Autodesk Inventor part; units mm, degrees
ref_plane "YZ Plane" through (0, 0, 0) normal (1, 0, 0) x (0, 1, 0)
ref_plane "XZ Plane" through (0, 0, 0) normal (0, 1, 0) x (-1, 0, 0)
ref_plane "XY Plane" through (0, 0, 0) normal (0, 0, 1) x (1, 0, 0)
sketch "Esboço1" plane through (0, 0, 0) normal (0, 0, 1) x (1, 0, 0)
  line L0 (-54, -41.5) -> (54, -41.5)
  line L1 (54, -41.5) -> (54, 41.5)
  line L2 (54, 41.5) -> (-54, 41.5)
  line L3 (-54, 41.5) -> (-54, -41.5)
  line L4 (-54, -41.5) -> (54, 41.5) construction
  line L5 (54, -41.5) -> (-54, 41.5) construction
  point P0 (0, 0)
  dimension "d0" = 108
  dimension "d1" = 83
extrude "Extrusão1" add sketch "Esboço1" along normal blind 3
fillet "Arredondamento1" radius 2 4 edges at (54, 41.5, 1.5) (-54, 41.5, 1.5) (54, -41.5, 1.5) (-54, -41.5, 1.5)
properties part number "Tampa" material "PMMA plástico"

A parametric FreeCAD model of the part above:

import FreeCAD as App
import Part
import Sketcher


def edges_at(feature, points):
    """Names of the edges that pass closest to the given points."""
    edges = feature.Shape.Edges
    near = lambda p: min(range(len(edges)), key=lambda i: edges[i].distToShape(Part.Vertex(*p))[0])
    return sorted({f"Edge{near(p) + 1}" for p in points})

doc = App.newDocument("Part")
body = doc.addObject("PartDesign::Body", "Body")

# Sketch on XY plane
sketch1 = body.newObject("Sketcher::SketchObject", "Sketch")
sketch1.AttachmentSupport = (doc.getObject("XY_Plane"), [""])
sketch1.MapMode = "FlatFace"
sketch1.addGeometry(Part.LineSegment(App.Vector(-54, 41.5, 0), App.Vector(-54, -41.5, 0)), False)
sketch1.addGeometry(Part.LineSegment(App.Vector(-54, -41.5, 0), App.Vector(54, -41.5, 0)), False)
sketch1.addGeometry(Part.LineSegment(App.Vector(54, -41.5, 0), App.Vector(54, 41.5, 0)), False)
sketch1.addGeometry(Part.LineSegment(App.Vector(54, 41.5, 0), App.Vector(-54, 41.5, 0)), False)
sketch1.addConstraint(Sketcher.Constraint("Coincident", 0, 2, 1, 1))
sketch1.addConstraint(Sketcher.Constraint("Coincident", 1, 2, 2, 1))
sketch1.addConstraint(Sketcher.Constraint("Coincident", 2, 2, 3, 1))
sketch1.addConstraint(Sketcher.Constraint("Coincident", 3, 2, 0, 1))
sketch1.addConstraint(Sketcher.Constraint("Vertical", 0))
sketch1.addConstraint(Sketcher.Constraint("Horizontal", 1))
sketch1.addConstraint(Sketcher.Constraint("Vertical", 2))
sketch1.addConstraint(Sketcher.Constraint("Horizontal", 3))
sketch1.addConstraint(Sketcher.Constraint("Symmetric", 0, 2, 2, 2, -1, 1))
sketch1.addConstraint(Sketcher.Constraint("DistanceX", 1, 1, 1, 2, 108.0))
sketch1.addConstraint(Sketcher.Constraint("DistanceY", 0, 2, 0, 1, 83.0))
pad1 = body.newObject("PartDesign::Pad", "Pad")
pad1.Profile = sketch1
pad1.Length = 3
doc.recompute()

fillet = body.newObject("PartDesign::Fillet", "Fillet")
fillet.Base = (pad1, edges_at(pad1, [
    (54, 41.5, 1.5),
    (-54, 41.5, 1.5),
    (54, -41.5, 1.5),
    (-54, -41.5, 1.5),
]))
fillet.Radius = 2

doc.recompute()
